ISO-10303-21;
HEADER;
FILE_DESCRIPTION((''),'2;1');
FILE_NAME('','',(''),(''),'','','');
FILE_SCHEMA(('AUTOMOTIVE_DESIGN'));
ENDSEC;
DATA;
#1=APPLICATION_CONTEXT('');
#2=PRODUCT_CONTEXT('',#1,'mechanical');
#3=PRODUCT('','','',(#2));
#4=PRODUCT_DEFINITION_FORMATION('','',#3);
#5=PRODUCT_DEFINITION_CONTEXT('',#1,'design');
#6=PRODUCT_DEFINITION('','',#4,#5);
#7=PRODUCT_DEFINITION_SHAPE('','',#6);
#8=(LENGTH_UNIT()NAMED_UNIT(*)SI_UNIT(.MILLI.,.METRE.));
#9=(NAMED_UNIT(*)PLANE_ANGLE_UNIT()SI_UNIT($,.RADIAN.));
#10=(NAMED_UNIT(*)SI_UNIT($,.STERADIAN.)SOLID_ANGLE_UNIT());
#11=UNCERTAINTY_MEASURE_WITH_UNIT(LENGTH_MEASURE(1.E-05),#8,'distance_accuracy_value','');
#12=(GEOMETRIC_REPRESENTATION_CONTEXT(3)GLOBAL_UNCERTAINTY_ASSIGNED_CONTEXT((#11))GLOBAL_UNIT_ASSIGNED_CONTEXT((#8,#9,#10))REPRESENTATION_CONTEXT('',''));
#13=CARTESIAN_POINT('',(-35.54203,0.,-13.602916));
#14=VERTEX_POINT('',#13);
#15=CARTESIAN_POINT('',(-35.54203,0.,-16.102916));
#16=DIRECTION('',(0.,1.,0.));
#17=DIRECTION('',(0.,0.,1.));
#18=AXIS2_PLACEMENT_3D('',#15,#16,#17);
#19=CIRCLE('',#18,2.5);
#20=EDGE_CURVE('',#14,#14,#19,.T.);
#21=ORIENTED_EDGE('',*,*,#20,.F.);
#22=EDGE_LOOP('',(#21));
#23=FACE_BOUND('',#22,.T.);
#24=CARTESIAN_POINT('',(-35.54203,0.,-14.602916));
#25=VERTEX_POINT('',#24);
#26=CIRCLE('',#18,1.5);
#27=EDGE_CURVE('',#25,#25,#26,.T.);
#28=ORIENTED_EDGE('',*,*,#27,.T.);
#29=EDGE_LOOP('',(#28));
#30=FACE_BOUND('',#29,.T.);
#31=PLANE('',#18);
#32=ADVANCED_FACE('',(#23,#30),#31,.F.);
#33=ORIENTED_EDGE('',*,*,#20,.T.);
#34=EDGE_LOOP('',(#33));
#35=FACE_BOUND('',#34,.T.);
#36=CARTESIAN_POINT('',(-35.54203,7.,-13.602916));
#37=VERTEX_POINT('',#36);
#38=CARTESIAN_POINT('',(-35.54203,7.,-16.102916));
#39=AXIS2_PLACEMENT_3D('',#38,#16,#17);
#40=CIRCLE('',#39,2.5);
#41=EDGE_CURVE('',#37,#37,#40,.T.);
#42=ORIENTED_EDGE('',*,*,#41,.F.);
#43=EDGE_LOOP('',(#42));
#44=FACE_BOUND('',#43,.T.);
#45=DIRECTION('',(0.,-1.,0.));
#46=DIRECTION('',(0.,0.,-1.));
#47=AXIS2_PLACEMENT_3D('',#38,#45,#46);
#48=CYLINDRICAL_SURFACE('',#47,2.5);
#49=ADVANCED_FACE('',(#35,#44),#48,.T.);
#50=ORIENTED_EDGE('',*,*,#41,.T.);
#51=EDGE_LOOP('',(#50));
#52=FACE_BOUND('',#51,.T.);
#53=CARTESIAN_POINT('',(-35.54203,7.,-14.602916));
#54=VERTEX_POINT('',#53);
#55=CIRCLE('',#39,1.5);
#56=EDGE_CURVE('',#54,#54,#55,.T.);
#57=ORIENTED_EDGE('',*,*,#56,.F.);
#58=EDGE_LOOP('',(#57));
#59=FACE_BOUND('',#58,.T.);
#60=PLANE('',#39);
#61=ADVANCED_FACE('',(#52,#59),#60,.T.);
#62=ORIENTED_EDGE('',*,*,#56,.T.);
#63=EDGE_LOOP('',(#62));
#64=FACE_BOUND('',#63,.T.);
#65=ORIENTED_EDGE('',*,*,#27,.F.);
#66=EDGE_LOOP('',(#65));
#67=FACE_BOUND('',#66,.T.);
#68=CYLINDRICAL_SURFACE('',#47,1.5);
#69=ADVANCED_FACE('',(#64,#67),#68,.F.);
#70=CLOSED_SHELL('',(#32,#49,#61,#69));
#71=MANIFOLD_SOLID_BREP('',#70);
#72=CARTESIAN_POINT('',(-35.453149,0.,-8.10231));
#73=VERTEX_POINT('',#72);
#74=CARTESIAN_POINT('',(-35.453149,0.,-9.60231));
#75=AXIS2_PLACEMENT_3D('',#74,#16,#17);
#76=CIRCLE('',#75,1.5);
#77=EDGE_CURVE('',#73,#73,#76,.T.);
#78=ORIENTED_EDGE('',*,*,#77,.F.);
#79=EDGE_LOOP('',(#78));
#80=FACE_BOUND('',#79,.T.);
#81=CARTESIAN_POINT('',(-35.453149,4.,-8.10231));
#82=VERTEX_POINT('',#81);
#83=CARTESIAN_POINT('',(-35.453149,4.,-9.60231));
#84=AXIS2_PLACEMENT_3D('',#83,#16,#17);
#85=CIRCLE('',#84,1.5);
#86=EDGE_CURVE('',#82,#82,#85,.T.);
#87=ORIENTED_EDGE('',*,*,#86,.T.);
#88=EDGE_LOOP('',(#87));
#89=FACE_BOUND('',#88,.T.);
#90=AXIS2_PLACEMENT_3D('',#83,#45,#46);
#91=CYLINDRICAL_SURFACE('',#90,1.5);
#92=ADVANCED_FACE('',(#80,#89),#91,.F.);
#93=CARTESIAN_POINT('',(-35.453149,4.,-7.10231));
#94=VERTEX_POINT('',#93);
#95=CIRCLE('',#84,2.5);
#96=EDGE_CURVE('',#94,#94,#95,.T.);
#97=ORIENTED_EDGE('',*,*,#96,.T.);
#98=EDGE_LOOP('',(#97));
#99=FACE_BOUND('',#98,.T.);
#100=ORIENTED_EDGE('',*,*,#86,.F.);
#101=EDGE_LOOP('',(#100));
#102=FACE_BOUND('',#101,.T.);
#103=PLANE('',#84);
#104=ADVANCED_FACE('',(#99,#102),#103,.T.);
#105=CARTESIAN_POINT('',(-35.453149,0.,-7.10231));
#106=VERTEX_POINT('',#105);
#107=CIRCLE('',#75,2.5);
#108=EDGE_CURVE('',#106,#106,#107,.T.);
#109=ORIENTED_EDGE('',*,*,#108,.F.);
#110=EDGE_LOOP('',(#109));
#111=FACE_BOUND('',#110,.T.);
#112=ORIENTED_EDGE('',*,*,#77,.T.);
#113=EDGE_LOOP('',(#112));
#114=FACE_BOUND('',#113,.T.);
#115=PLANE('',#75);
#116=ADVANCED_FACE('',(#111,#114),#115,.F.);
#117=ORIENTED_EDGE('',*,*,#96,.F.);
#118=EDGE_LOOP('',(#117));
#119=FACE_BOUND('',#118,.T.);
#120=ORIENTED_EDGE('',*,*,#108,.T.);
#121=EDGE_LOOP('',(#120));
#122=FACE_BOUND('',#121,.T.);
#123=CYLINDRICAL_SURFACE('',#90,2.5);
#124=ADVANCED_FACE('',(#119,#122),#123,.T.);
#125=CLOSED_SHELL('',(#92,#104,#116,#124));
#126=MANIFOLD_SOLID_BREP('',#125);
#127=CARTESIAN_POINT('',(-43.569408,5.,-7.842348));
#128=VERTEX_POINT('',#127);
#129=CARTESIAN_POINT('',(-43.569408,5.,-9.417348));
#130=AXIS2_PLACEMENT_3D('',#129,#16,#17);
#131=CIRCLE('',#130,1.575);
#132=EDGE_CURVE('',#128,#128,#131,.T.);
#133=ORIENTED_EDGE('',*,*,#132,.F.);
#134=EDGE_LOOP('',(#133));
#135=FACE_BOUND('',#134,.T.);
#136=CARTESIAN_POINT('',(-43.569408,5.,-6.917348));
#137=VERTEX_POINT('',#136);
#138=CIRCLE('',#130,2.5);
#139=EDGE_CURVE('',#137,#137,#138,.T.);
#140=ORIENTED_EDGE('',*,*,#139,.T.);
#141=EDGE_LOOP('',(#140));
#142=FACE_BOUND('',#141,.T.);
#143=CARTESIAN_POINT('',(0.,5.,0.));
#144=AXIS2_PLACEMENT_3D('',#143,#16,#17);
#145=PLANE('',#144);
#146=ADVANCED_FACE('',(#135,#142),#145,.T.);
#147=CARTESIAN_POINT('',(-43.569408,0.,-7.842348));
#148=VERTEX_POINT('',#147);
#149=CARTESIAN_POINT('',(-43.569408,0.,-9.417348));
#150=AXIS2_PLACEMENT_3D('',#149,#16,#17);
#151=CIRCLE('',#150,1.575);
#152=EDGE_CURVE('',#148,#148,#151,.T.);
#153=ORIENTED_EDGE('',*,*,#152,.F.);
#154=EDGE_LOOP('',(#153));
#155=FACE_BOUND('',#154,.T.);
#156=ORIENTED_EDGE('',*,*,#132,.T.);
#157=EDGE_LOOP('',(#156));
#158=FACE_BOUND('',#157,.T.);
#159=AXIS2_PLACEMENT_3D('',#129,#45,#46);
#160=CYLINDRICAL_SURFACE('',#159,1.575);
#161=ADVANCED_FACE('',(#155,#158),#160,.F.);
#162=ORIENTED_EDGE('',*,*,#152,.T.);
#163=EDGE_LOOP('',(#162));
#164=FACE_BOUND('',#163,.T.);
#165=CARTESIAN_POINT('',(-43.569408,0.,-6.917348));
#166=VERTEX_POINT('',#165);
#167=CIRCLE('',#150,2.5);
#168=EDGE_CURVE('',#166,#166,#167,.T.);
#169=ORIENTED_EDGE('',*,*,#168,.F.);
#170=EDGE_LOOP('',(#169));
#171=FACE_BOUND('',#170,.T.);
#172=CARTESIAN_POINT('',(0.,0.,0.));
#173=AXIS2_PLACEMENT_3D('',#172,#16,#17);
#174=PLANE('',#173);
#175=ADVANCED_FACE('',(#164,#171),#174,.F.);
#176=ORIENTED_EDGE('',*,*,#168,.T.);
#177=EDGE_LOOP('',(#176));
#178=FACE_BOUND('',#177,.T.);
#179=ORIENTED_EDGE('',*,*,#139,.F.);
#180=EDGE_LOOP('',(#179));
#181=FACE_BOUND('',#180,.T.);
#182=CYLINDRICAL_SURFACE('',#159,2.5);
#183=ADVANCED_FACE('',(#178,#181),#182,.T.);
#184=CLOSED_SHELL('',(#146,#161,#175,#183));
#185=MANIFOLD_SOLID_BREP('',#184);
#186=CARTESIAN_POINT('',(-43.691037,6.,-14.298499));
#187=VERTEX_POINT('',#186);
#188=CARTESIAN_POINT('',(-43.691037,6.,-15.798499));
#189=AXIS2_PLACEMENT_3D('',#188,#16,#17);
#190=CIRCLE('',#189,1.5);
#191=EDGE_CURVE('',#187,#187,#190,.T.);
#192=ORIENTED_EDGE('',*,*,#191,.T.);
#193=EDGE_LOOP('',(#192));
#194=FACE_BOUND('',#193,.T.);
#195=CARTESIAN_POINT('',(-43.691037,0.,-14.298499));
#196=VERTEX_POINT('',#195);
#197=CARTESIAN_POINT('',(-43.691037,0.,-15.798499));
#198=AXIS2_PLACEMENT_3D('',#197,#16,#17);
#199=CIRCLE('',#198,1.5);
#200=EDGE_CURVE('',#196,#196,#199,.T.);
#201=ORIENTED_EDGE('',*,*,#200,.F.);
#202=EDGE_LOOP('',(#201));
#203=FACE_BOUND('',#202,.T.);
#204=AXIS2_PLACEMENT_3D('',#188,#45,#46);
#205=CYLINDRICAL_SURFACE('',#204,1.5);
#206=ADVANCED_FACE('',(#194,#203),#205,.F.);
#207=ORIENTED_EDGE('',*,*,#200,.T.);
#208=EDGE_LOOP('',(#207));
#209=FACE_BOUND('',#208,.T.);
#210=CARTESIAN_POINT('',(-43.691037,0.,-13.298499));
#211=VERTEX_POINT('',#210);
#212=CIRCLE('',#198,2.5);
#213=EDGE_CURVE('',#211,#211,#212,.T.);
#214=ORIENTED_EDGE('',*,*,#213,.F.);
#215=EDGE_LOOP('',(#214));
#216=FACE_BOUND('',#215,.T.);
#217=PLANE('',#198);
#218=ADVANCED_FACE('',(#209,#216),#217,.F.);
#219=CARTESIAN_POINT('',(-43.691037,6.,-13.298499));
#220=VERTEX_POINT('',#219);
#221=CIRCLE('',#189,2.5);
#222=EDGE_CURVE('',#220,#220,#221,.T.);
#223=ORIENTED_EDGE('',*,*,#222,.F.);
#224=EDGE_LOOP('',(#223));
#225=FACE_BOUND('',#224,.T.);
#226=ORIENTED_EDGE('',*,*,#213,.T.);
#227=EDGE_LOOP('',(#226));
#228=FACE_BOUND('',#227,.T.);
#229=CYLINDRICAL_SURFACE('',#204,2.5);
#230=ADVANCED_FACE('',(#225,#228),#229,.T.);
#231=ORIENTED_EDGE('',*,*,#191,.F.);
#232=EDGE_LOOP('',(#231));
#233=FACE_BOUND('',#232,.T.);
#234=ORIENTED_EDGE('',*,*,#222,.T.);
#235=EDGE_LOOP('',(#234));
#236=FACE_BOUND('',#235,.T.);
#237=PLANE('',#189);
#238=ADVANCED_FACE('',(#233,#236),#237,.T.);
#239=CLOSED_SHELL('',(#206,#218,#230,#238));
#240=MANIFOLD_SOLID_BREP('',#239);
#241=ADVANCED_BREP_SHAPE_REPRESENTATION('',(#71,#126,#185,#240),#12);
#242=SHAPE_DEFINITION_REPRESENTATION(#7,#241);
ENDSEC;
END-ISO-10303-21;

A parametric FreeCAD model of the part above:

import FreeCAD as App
import Part
import Sketcher

V = App.Vector

doc = App.newDocument("Part")
params = doc.addObject("Spreadsheet::Sheet", "Params")
for row, (alias, value) in enumerate([
    ("sketch1_diameter", "5 mm"),
    ("sketch1_diameter2", "3.15 mm"),
    ("pad1_length", "5 mm"),
    ("sketch2_diameter", "5 mm"),
    ("sketch2_diameter2", "3 mm"),
    ("pad2_length", "4 mm"),
    ("sketch3_diameter", "5 mm"),
    ("sketch3_diameter2", "3 mm"),
    ("pad3_length", "6 mm"),
    ("sketch4_diameter", "5 mm"),
    ("sketch4_diameter2", "3 mm"),
    ("pad4_length", "7 mm"),
], start=1):
    params.set(f"A{row}", alias)
    params.set(f"B{row}", "=" + value)
    params.setAlias(f"B{row}", alias)

body = doc.addObject("PartDesign::Body", "Body")

sketch1 = doc.addObject("Sketcher::SketchObject", "Sketch")
body.addObject(sketch1)
sketch1.AttachmentSupport = (doc.XZ_Plane, [""])
sketch1.MapMode = "FlatFace"
sketch1.addGeometry(Part.Circle(V(-43.569408, -9.417348, 0), V(0, 0, 1), 2.5), False)
sketch1.addGeometry(Part.Circle(V(-43.569408, -9.417348, 0), V(0, 0, 1), 1.575), False)
sketch1.addConstraint(Sketcher.Constraint("Coincident", 1, 3, 0, 3))
sketch1.addConstraint(Sketcher.Constraint("Diameter", 0, 5.0))
sketch1.addConstraint(Sketcher.Constraint("Diameter", 1, 3.15))
sketch1.addConstraint(Sketcher.Constraint("DistanceX", 0, 3, -1, 1, 43.569408))
sketch1.addConstraint(Sketcher.Constraint("DistanceY", 0, 3, -1, 1, 9.417348))
sketch1.setExpression("Constraints[1]", "Params.sketch1_diameter")
sketch1.setExpression("Constraints[2]", "Params.sketch1_diameter2")
pad1 = doc.addObject("PartDesign::Pad", "Pad")
body.addObject(pad1)
pad1.Profile = sketch1
pad1.setExpression("Length", "Params.pad1_length")
pad1.Reversed = True
body2 = doc.addObject("PartDesign::Body", "Body001")

sketch2 = doc.addObject("Sketcher::SketchObject", "Sketch001")
body2.addObject(sketch2)
sketch2.AttachmentSupport = (doc.getObject("XZ_Plane001"), [""])
sketch2.MapMode = "FlatFace"
sketch2.addGeometry(Part.Circle(V(-35.453149, -9.60231, 0), V(0, 0, 1), 2.5), False)
sketch2.addGeometry(Part.Circle(V(-35.453149, -9.60231, 0), V(0, 0, 1), 1.5), False)
sketch2.addConstraint(Sketcher.Constraint("Coincident", 1, 3, 0, 3))
sketch2.addConstraint(Sketcher.Constraint("Diameter", 0, 5.0))
sketch2.addConstraint(Sketcher.Constraint("Diameter", 1, 3.0))
sketch2.addConstraint(Sketcher.Constraint("DistanceX", 0, 3, -1, 1, 35.453149))
sketch2.addConstraint(Sketcher.Constraint("DistanceY", 0, 3, -1, 1, 9.60231))
sketch2.setExpression("Constraints[1]", "Params.sketch2_diameter")
sketch2.setExpression("Constraints[2]", "Params.sketch2_diameter2")
pad2 = doc.addObject("PartDesign::Pad", "Pad001")
body2.addObject(pad2)
pad2.Profile = sketch2
pad2.setExpression("Length", "Params.pad2_length")
pad2.Reversed = True
body3 = doc.addObject("PartDesign::Body", "Body002")

sketch3 = doc.addObject("Sketcher::SketchObject", "Sketch002")
body3.addObject(sketch3)
sketch3.AttachmentSupport = (doc.getObject("XZ_Plane002"), [""])
sketch3.MapMode = "FlatFace"
sketch3.addGeometry(Part.Circle(V(-43.691037, -15.798499, 0), V(0, 0, 1), 2.5), False)
sketch3.addGeometry(Part.Circle(V(-43.691037, -15.798499, 0), V(0, 0, 1), 1.5), False)
sketch3.addConstraint(Sketcher.Constraint("Coincident", 1, 3, 0, 3))
sketch3.addConstraint(Sketcher.Constraint("Diameter", 0, 5.0))
sketch3.addConstraint(Sketcher.Constraint("Diameter", 1, 3.0))
sketch3.addConstraint(Sketcher.Constraint("DistanceY", 0, 3, -1, 1, 15.798499))
sketch3.addConstraint(Sketcher.Constraint("DistanceX", 0, 3, -1, 1, 43.691037))
sketch3.setExpression("Constraints[1]", "Params.sketch3_diameter")
sketch3.setExpression("Constraints[2]", "Params.sketch3_diameter2")
pad3 = doc.addObject("PartDesign::Pad", "Pad002")
body3.addObject(pad3)
pad3.Profile = sketch3
pad3.setExpression("Length", "Params.pad3_length")
pad3.Reversed = True
body4 = doc.addObject("PartDesign::Body", "Body003")

sketch4 = doc.addObject("Sketcher::SketchObject", "Sketch003")
body4.addObject(sketch4)
sketch4.AttachmentSupport = (doc.getObject("XZ_Plane003"), [""])
sketch4.MapMode = "FlatFace"
sketch4.addGeometry(Part.Circle(V(-35.54203, -16.102916, 0), V(0, 0, 1), 2.5), False)
sketch4.addGeometry(Part.Circle(V(-35.54203, -16.102916, 0), V(0, 0, 1), 1.5), False)
sketch4.addConstraint(Sketcher.Constraint("Coincident", 1, 3, 0, 3))
sketch4.addConstraint(Sketcher.Constraint("Diameter", 0, 5.0))
sketch4.addConstraint(Sketcher.Constraint("Diameter", 1, 3.0))
sketch4.addConstraint(Sketcher.Constraint("DistanceX", 0, 3, -1, 1, 35.54203))
sketch4.addConstraint(Sketcher.Constraint("DistanceY", 0, 3, -1, 1, 16.102916))
sketch4.setExpression("Constraints[1]", "Params.sketch4_diameter")
sketch4.setExpression("Constraints[2]", "Params.sketch4_diameter2")
pad4 = doc.addObject("PartDesign::Pad", "Pad003")
body4.addObject(pad4)
pad4.Profile = sketch4
pad4.setExpression("Length", "Params.pad4_length")
pad4.Reversed = True

doc.recompute()
